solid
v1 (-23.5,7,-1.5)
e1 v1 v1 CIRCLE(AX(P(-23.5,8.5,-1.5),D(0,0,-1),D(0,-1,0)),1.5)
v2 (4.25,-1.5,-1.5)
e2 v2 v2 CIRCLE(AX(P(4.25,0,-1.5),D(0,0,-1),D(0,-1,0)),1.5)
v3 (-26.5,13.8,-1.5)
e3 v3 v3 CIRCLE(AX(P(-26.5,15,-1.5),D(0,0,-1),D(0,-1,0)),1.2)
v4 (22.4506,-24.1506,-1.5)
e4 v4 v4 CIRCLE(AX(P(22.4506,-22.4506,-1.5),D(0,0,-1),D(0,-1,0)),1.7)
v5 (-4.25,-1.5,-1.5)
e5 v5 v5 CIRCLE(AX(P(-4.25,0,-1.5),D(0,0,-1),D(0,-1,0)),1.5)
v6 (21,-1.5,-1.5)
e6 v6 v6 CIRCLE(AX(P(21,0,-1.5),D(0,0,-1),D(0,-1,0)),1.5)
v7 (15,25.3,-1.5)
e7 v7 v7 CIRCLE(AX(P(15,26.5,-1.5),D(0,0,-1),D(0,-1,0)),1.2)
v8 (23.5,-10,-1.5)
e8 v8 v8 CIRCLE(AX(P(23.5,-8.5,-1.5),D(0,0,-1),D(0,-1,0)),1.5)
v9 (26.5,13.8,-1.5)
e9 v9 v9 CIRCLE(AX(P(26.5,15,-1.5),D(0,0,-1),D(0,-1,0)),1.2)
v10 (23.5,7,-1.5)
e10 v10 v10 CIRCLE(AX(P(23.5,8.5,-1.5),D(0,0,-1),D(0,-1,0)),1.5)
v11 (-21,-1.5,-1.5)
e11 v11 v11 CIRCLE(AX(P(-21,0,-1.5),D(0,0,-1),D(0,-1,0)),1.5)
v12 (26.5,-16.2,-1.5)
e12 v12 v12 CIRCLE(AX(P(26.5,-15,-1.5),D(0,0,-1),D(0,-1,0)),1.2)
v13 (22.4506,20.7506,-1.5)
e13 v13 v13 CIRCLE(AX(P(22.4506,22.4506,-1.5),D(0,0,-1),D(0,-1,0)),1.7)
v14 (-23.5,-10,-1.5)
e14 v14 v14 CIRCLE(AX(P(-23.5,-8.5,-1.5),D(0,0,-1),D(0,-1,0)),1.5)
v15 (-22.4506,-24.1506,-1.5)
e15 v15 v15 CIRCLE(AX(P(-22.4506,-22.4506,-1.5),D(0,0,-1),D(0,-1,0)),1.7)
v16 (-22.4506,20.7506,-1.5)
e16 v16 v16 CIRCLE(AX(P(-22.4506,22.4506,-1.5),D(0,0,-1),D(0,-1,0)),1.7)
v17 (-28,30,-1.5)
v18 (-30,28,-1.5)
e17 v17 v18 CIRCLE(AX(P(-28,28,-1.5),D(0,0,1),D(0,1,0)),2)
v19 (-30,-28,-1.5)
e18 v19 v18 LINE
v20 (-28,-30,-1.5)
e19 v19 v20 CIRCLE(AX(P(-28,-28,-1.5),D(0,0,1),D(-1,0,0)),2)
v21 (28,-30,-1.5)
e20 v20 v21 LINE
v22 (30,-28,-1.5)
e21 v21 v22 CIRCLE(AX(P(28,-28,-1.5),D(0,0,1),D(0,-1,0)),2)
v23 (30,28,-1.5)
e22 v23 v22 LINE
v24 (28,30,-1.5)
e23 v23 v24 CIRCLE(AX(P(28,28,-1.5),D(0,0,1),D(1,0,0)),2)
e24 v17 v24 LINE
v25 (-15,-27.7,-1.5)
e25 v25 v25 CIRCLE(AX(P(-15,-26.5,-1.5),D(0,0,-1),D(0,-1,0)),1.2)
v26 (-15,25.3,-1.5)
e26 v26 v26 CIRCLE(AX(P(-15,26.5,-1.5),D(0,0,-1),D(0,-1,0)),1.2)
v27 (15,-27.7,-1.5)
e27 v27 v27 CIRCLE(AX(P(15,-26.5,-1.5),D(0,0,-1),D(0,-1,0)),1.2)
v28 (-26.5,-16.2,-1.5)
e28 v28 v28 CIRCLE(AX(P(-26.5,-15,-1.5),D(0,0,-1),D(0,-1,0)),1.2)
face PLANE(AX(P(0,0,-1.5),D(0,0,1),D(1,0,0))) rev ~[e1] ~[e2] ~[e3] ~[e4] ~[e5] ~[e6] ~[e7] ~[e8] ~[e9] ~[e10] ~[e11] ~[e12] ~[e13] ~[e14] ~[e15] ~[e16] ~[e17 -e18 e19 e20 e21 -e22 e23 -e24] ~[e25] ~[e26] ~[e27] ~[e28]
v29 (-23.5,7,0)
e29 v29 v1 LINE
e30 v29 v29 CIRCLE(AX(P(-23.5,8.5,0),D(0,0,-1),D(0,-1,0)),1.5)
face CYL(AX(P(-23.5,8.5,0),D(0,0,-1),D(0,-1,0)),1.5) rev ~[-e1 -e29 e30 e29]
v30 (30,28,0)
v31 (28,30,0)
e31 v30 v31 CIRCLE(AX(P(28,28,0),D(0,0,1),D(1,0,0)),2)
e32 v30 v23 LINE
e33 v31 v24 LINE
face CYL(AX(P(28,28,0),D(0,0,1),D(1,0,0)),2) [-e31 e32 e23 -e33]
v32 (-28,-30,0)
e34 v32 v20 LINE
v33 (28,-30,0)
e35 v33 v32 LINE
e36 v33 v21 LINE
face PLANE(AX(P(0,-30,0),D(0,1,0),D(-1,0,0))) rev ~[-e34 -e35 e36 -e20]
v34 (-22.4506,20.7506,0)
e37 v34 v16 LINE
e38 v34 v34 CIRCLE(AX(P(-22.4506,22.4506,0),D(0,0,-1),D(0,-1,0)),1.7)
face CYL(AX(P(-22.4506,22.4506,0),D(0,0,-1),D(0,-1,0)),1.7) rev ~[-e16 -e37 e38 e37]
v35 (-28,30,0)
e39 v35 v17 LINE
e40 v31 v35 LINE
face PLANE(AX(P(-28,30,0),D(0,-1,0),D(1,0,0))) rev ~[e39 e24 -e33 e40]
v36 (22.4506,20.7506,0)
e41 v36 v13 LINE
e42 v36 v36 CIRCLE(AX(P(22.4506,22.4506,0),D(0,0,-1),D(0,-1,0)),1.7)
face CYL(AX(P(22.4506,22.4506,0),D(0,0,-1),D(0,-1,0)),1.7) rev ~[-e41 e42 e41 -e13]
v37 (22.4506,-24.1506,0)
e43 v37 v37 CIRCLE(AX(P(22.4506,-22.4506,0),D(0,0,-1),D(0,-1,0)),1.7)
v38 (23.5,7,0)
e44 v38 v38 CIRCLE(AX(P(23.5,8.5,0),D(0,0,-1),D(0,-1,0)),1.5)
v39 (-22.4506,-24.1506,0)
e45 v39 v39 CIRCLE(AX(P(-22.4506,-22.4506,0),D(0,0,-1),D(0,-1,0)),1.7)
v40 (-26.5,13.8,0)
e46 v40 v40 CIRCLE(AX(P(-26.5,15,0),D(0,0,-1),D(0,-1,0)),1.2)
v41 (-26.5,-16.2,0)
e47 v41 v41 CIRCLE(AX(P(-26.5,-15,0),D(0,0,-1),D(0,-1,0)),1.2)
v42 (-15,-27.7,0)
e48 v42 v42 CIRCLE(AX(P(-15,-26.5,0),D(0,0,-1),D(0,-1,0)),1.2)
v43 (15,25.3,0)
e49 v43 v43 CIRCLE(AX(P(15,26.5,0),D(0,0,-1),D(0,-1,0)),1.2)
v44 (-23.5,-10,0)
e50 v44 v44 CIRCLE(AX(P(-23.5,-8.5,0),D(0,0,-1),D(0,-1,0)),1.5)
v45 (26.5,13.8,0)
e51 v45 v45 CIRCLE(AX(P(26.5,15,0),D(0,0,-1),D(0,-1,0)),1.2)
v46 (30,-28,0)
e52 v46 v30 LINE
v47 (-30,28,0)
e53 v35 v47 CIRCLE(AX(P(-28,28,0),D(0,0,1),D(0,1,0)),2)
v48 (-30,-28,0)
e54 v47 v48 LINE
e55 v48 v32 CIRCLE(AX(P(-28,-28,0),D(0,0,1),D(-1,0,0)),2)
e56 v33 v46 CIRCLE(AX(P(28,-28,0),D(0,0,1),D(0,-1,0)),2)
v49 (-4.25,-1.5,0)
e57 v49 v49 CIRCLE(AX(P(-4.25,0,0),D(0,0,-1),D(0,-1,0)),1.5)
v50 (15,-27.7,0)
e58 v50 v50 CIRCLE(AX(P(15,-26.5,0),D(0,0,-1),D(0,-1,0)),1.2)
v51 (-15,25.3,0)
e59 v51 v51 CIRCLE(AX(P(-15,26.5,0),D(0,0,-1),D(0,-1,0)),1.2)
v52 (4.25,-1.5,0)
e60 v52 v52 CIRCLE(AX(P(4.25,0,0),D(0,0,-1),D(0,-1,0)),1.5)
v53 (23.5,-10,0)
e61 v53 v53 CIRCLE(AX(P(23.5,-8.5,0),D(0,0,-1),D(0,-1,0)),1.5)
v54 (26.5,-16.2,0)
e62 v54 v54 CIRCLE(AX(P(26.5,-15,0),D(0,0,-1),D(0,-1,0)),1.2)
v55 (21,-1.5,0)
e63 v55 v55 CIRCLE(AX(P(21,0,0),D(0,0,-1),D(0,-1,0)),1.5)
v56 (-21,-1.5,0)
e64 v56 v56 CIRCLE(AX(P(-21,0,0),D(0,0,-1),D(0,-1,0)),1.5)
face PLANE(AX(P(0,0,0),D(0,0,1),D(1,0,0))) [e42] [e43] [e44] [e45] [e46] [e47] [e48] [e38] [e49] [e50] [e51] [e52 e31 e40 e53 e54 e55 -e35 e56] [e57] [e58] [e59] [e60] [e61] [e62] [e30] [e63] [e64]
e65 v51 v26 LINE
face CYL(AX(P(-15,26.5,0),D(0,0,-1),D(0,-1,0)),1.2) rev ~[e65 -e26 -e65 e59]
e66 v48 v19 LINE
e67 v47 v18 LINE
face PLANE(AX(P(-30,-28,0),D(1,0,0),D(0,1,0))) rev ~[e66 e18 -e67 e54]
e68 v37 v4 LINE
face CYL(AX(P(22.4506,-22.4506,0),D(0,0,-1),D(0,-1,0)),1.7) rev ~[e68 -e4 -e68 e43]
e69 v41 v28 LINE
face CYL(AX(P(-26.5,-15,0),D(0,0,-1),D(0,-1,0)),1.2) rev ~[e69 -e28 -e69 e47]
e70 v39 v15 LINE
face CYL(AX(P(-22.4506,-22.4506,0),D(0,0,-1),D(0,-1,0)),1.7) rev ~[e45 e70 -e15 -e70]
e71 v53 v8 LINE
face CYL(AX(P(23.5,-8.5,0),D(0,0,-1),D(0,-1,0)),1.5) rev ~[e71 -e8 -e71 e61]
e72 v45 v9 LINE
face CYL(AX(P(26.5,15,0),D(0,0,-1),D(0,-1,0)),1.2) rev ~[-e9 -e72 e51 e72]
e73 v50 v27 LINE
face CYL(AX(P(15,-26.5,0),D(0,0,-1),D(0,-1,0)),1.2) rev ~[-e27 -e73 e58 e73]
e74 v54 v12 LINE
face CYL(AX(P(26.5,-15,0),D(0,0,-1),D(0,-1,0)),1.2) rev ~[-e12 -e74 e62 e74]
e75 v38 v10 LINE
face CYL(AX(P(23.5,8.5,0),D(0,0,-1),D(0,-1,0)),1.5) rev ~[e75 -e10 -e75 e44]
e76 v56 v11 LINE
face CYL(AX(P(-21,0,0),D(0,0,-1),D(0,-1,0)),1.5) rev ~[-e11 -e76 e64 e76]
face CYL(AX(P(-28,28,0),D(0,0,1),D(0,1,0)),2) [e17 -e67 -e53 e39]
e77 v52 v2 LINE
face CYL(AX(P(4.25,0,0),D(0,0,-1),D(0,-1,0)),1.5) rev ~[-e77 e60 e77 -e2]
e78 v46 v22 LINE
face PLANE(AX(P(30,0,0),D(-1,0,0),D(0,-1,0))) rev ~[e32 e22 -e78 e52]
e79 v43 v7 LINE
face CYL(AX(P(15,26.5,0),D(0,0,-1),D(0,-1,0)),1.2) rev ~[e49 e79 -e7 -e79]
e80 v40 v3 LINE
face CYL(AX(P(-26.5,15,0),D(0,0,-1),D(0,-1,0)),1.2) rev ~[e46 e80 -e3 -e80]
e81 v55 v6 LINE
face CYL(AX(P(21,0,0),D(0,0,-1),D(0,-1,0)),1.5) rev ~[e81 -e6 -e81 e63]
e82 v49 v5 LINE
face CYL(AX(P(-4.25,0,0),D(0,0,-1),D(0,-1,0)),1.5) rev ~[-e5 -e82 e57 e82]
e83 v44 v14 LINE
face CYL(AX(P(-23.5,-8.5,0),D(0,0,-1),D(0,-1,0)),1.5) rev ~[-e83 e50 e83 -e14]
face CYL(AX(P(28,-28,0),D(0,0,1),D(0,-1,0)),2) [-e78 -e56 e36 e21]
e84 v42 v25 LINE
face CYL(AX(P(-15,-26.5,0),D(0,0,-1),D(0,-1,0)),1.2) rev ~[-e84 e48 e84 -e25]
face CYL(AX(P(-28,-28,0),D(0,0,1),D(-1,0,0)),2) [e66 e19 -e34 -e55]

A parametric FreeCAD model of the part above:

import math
import FreeCAD as App
import Part
import Sketcher
from FreeCAD import Vector
Q = App.Units.Quantity

doc = App.newDocument("Part")
params = doc.addObject("Spreadsheet::Sheet", "Params")
for row, (alias, value) in enumerate([
    ("sketch1_radius", "2 mm"),
    ("sketch1_width", "56 mm"),
    ("pad1_length", "1.5 mm"),
    ("sketch2_diameter", "3.4 mm"),
    ("hole_diameter", "3.4 mm"),
    ("sketch3_diameter", "2.4 mm"),
    ("hole2_diameter", "2.4 mm"),
    ("sketch4_diameter", "3 mm"),
    ("hole3_diameter", "3 mm"),
    ("sketch5_diameter", "3 mm"),
    ("hole4_diameter", "3 mm"),
], start=1):
    params.set(f"A{row}", alias)
    params.set(f"B{row}", "=" + value)
    params.setAlias(f"B{row}", alias)

body = doc.addObject("PartDesign::Body", "Body")

# Sketch on XY plane
sketch1 = body.newObject("Sketcher::SketchObject", "Sketch")
sketch1.AttachmentSupport = (doc.getObject("XY_Plane"), [""])
sketch1.MapMode = "FlatFace"
sketch1.addGeometry(Part.LineSegment(Vector(-28, -30, 0), Vector(28, -30, 0)), False)
sketch1.addGeometry(Part.ArcOfCircle(Part.Circle(Vector(28, -28, 0), Vector(0, 0, 1), 2), math.radians(-90), math.radians(0)), False)
sketch1.addGeometry(Part.LineSegment(Vector(30, -28, 0), Vector(30, 28, 0)), False)
sketch1.addGeometry(Part.ArcOfCircle(Part.Circle(Vector(28, 28, 0), Vector(0, 0, 1), 2), math.radians(0), math.radians(90)), False)
sketch1.addGeometry(Part.LineSegment(Vector(28, 30, 0), Vector(-28, 30, 0)), False)
sketch1.addGeometry(Part.ArcOfCircle(Part.Circle(Vector(-28, 28, 0), Vector(0, 0, 1), 2), math.radians(90), math.radians(180)), False)
sketch1.addGeometry(Part.LineSegment(Vector(-30, 28, 0), Vector(-30, -28, 0)), False)
sketch1.addGeometry(Part.ArcOfCircle(Part.Circle(Vector(-28, -28, 0), Vector(0, 0, 1), 2), math.radians(180), math.radians(270)), False)
sketch1.addConstraint(Sketcher.Constraint("Tangent", 0, 2, 1, 1))
sketch1.addConstraint(Sketcher.Constraint("Tangent", 1, 2, 2, 1))
sketch1.addConstraint(Sketcher.Constraint("Tangent", 2, 2, 3, 1))
sketch1.addConstraint(Sketcher.Constraint("Tangent", 3, 2, 4, 1))
sketch1.addConstraint(Sketcher.Constraint("Tangent", 4, 2, 5, 1))
sketch1.addConstraint(Sketcher.Constraint("Tangent", 5, 2, 6, 1))
sketch1.addConstraint(Sketcher.Constraint("Tangent", 6, 2, 7, 1))
sketch1.addConstraint(Sketcher.Constraint("Tangent", 7, 2, 0, 1))
sketch1.addConstraint(Sketcher.Constraint("Horizontal", 0))
sketch1.addConstraint(Sketcher.Constraint("Vertical", 2))
sketch1.addConstraint(Sketcher.Constraint("Horizontal", 4))
sketch1.addConstraint(Sketcher.Constraint("Vertical", 6))
sketch1.addConstraint(Sketcher.Constraint("Equal", 1, 3))
sketch1.addConstraint(Sketcher.Constraint("Equal", 3, 5))
sketch1.addConstraint(Sketcher.Constraint("Equal", 5, 7))
sketch1.addConstraint(Sketcher.Constraint("Symmetric", 1, 3, 5, 3, -1, 1))
sketch1.addConstraint(Sketcher.Constraint("Equal", 4, 2))
sketch1.addConstraint(Sketcher.Constraint("Radius", 1, Q("2 mm")))
sketch1.addConstraint(Sketcher.Constraint("DistanceX", 0, 1, 0, 2, Q("56 mm")))
sketch1.setExpression("Constraints[17]", "Params.sketch1_radius")
sketch1.setExpression("Constraints[18]", "Params.sketch1_width")
pad1 = body.newObject("PartDesign::Pad", "Pad")
pad1.Profile = sketch1
pad1.setExpression("Length", "Params.pad1_length")
pad1.Reversed = True

# Sketch on XY plane
sketch2 = body.newObject("Sketcher::SketchObject", "Sketch001")
sketch2.AttachmentSupport = (doc.getObject("XY_Plane"), [""])
sketch2.MapMode = "FlatFace"
sketch2.addGeometry(Part.Circle(Vector(-22.4506, 22.4506, 0), Vector(0, 0, 1), 1.7), False)
sketch2.addGeometry(Part.Circle(Vector(22.4506, 22.4506, 0), Vector(0, 0, 1), 1.7), False)
sketch2.addGeometry(Part.Circle(Vector(22.4506, -22.4506, 0), Vector(0, 0, 1), 1.7), False)
sketch2.addGeometry(Part.Circle(Vector(-22.4506, -22.4506, 0), Vector(0, 0, 1), 1.7), False)
sketch2.addConstraint(Sketcher.Constraint("Equal", 0, 1))
sketch2.addConstraint(Sketcher.Constraint("Equal", 1, 2))
sketch2.addConstraint(Sketcher.Constraint("Equal", 2, 3))
sketch2.addConstraint(Sketcher.Constraint("Symmetric", 0, 3, 2, 3, -1, 1))
sketch2.addConstraint(Sketcher.Constraint("Symmetric", 1, 3, 3, 3, -1, 1))
sketch2.addConstraint(Sketcher.Constraint("Symmetric", 0, 3, 1, 3, -2))
sketch2.addConstraint(Sketcher.Constraint("Diameter", 0, Q("3.4 mm")))
sketch2.addConstraint(Sketcher.Constraint("DistanceX", 0, 3, -1, 1, Q("22.4506 mm")))
sketch2.addConstraint(Sketcher.Constraint("DistanceY", -1, 1, 0, 3, Q("22.4506 mm")))
sketch2.setExpression("Constraints[6]", "Params.sketch2_diameter")
doc.recompute()
hole = body.newObject("PartDesign::Hole", "Hole")
hole.Profile = sketch2
hole.ThreadType = "None"
hole.setExpression("Diameter", "Params.hole_diameter")
hole.DepthType = "ThroughAll"

# Sketch on XY plane
sketch3 = body.newObject("Sketcher::SketchObject", "Sketch002")
sketch3.AttachmentSupport = (doc.getObject("XY_Plane"), [""])
sketch3.MapMode = "FlatFace"
sketch3.addGeometry(Part.Circle(Vector(-26.5, 15, 0), Vector(0, 0, 1), 1.2), False)
sketch3.addGeometry(Part.Circle(Vector(-15, 26.5, 0), Vector(0, 0, 1), 1.2), False)
sketch3.addGeometry(Part.Circle(Vector(-15, -26.5, 0), Vector(0, 0, 1), 1.2), False)
sketch3.addGeometry(Part.Circle(Vector(-26.5, -15, 0), Vector(0, 0, 1), 1.2), False)
sketch3.addGeometry(Part.Circle(Vector(26.5, -15, 0), Vector(0, 0, 1), 1.2), False)
sketch3.addGeometry(Part.Circle(Vector(15, -26.5, 0), Vector(0, 0, 1), 1.2), False)
sketch3.addGeometry(Part.Circle(Vector(15, 26.5, 0), Vector(0, 0, 1), 1.2), False)
sketch3.addGeometry(Part.Circle(Vector(26.5, 15, 0), Vector(0, 0, 1), 1.2), False)
sketch3.addConstraint(Sketcher.Constraint("Equal", 0, 1))
sketch3.addConstraint(Sketcher.Constraint("Equal", 1, 2))
sketch3.addConstraint(Sketcher.Constraint("Equal", 2, 3))
sketch3.addConstraint(Sketcher.Constraint("Equal", 3, 4))
sketch3.addConstraint(Sketcher.Constraint("Equal", 4, 5))
sketch3.addConstraint(Sketcher.Constraint("Equal", 5, 6))
sketch3.addConstraint(Sketcher.Constraint("Equal", 6, 7))
sketch3.addConstraint(Sketcher.Constraint("Symmetric", 0, 3, 4, 3, -1, 1))
sketch3.addConstraint(Sketcher.Constraint("Symmetric", 1, 3, 5, 3, -1, 1))
sketch3.addConstraint(Sketcher.Constraint("Symmetric", 2, 3, 6, 3, -1, 1))
sketch3.addConstraint(Sketcher.Constraint("Symmetric", 3, 3, 7, 3, -1, 1))
sketch3.addConstraint(Sketcher.Constraint("Symmetric", 3, 3, 4, 3, -2))
sketch3.addConstraint(Sketcher.Constraint("Symmetric", 2, 3, 5, 3, -2))
sketch3.addConstraint(Sketcher.Constraint("Diameter", 0, Q("2.4 mm")))
sketch3.addConstraint(Sketcher.Constraint("DistanceY", -1, 1, 0, 3, Q("15 mm")))
sketch3.addConstraint(Sketcher.Constraint("DistanceX", 1, 3, -1, 1, Q("15 mm")))
sketch3.addConstraint(Sketcher.Constraint("DistanceY", 2, 3, 1, 3, Q("53 mm")))
sketch3.addConstraint(Sketcher.Constraint("DistanceX", 3, 3, 4, 3, Q("53 mm")))
sketch3.setExpression("Constraints[13]", "Params.sketch3_diameter")
doc.recompute()
hole2 = body.newObject("PartDesign::Hole", "Hole001")
hole2.Profile = sketch3
hole2.ThreadType = "None"
hole2.setExpression("Diameter", "Params.hole2_diameter")
hole2.DepthType = "ThroughAll"

# Sketch on XY plane
sketch4 = body.newObject("Sketcher::SketchObject", "Sketch003")
sketch4.AttachmentSupport = (doc.getObject("XY_Plane"), [""])
sketch4.MapMode = "FlatFace"
sketch4.addGeometry(Part.Circle(Vector(-21, 0, 0), Vector(0, 0, 1), 1.5), False)
sketch4.addGeometry(Part.Circle(Vector(21, 0, 0), Vector(0, 0, 1), 1.5), False)
sketch4.addConstraint(Sketcher.Constraint("Equal", 0, 1))
sketch4.addConstraint(Sketcher.Constraint("Symmetric", 0, 3, 1, 3, -1, 1))
sketch4.addConstraint(Sketcher.Constraint("PointOnObject", 0, 3, -1))
sketch4.addConstraint(Sketcher.Constraint("Diameter", 0, Q("3 mm")))
sketch4.addConstraint(Sketcher.Constraint("DistanceX", 0, 3, -1, 1, Q("21 mm")))
sketch4.setExpression("Constraints[3]", "Params.sketch4_diameter")
doc.recompute()
hole3 = body.newObject("PartDesign::Hole", "Hole002")
hole3.Profile = sketch4
hole3.ThreadType = "None"
hole3.setExpression("Diameter", "Params.hole3_diameter")
hole3.DepthType = "ThroughAll"

# Sketch on XY plane
sketch5 = body.newObject("Sketcher::SketchObject", "Sketch004")
sketch5.AttachmentSupport = (doc.getObject("XY_Plane"), [""])
sketch5.MapMode = "FlatFace"
sketch5.addGeometry(Part.Circle(Vector(-4.25, 0, 0), Vector(0, 0, 1), 1.5), False)
sketch5.addGeometry(Part.Circle(Vector(4.25, 0, 0), Vector(0, 0, 1), 1.5), False)
sketch5.addGeometry(Part.Circle(Vector(-23.5, -8.5, 0), Vector(0, 0, 1), 1.5), False)
sketch5.addGeometry(Part.Circle(Vector(-23.5, 8.5, 0), Vector(0, 0, 1), 1.5), False)
sketch5.addGeometry(Part.Circle(Vector(23.5, 8.5, 0), Vector(0, 0, 1), 1.5), False)
sketch5.addGeometry(Part.Circle(Vector(23.5, -8.5, 0), Vector(0, 0, 1), 1.5), False)
sketch5.addConstraint(Sketcher.Constraint("Equal", 0, 1))
sketch5.addConstraint(Sketcher.Constraint("Equal", 1, 2))
sketch5.addConstraint(Sketcher.Constraint("Equal", 2, 3))
sketch5.addConstraint(Sketcher.Constraint("Equal", 3, 4))
sketch5.addConstraint(Sketcher.Constraint("Equal", 4, 5))
sketch5.addConstraint(Sketcher.Constraint("Symmetric", 0, 3, 1, 3, -1, 1))
sketch5.addConstraint(Sketcher.Constraint("Symmetric", 2, 3, 4, 3, -1, 1))
sketch5.addConstraint(Sketcher.Constraint("Symmetric", 3, 3, 5, 3, -1, 1))
sketch5.addConstraint(Sketcher.Constraint("Symmetric", 3, 3, 4, 3, -2))
sketch5.addConstraint(Sketcher.Constraint("PointOnObject", 0, 3, -1))
sketch5.addConstraint(Sketcher.Constraint("Diameter", 0, Q("3 mm")))
sketch5.addConstraint(Sketcher.Constraint("DistanceY", 2, 3, 3, 3, Q("17 mm")))
sketch5.addConstraint(Sketcher.Constraint("DistanceX", 3, 3, 4, 3, Q("47 mm")))
sketch5.addConstraint(Sketcher.Constraint("DistanceX", 0, 3, 1, 3, Q("8.5 mm")))
sketch5.setExpression("Constraints[10]", "Params.sketch5_diameter")
doc.recompute()
hole4 = body.newObject("PartDesign::Hole", "Hole003")
hole4.Profile = sketch5
hole4.ThreadType = "None"
hole4.setExpression("Diameter", "Params.hole4_diameter")
hole4.DepthType = "ThroughAll"

doc.recompute()
